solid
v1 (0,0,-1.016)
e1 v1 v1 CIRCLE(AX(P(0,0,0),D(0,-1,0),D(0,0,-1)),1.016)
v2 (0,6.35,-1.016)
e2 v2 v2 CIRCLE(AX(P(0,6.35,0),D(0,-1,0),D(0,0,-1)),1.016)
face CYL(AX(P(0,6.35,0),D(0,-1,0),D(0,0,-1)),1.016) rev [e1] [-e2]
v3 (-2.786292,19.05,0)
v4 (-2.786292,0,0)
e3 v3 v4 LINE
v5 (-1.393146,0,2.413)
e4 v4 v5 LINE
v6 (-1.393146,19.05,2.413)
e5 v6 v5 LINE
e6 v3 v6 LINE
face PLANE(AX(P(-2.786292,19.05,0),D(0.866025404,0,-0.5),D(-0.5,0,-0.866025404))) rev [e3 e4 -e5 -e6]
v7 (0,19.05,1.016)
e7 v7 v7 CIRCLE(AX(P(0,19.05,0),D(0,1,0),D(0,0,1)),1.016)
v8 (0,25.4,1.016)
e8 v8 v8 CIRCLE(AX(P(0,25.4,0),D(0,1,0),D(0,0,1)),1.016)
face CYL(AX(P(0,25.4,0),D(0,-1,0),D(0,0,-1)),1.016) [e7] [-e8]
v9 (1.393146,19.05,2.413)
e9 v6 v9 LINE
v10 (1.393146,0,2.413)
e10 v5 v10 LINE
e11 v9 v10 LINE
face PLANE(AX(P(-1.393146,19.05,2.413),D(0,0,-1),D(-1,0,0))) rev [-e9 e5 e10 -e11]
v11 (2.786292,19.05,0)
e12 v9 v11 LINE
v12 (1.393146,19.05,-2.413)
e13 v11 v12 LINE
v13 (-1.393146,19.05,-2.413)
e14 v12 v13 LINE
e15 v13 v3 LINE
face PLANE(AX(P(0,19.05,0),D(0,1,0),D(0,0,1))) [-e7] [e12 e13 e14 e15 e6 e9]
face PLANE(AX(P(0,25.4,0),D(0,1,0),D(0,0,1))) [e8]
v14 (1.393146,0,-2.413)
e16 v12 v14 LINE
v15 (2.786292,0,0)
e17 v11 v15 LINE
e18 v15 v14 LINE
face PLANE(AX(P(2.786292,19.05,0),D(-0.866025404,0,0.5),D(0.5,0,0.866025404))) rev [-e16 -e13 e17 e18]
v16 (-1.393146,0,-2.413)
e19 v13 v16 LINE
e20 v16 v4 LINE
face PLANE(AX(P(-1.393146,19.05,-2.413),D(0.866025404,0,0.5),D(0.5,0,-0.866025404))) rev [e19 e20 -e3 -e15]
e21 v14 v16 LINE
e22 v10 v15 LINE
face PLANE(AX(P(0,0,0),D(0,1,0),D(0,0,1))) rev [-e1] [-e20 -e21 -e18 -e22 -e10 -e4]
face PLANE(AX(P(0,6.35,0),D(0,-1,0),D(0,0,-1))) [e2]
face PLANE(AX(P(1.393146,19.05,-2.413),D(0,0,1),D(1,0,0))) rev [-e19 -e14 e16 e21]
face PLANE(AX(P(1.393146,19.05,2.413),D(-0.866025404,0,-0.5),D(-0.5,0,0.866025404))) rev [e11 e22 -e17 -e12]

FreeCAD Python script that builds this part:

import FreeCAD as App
import Part
import Sketcher
from FreeCAD import Vector
Q = App.Units.Quantity


def add_polygon(sketch, points):
    """Adds a closed chain of lines whose ends are joined by coincident constraints."""
    first, n = sketch.GeometryCount, len(points)
    for a, b in zip(points, points[1:] + points[:1]):
        sketch.addGeometry(Part.LineSegment(App.Vector(*a, 0), App.Vector(*b, 0)), False)
    for i in range(n):
        sketch.addConstraint(Sketcher.Constraint("Coincident", first + i, 2, first + (i + 1) % n, 1))

doc = App.newDocument("Part")
params = doc.addObject("Spreadsheet::Sheet", "Params")
for row, (alias, value) in enumerate([
    ("pad1_length", "0.75 in"),
    ("sketch2_diameter", "0.08 in"),
    ("pad2_length", "0.25 in"),
    ("sketch3_diameter", "0.08 in"),
    ("pocket1_length", "0.25 in"),
], start=1):
    params.set(f"A{row}", alias)
    params.set(f"B{row}", "=" + value)
    params.setAlias(f"B{row}", alias)

body = doc.addObject("PartDesign::Body", "Body")

# Sketch on XZ plane
sketch1 = doc.addObject("Sketcher::SketchObject", "Sketch")
body.addObject(sketch1)
sketch1.AttachmentSupport = (doc.XZ_Plane, [""])
sketch1.MapMode = "FlatFace"
add_polygon(sketch1, [(1.4, 2.4), (2.8, 0), (1.4, -2.4), (-1.4, -2.4), (-2.8, 0), (-1.4, 2.4)])  # lines 0-5
sketch1.addConstraint([
    Sketcher.Constraint("Horizontal", 2),
    Sketcher.Constraint("Horizontal", 5),
    Sketcher.Constraint("Symmetric", 0, 2, 3, 2, -1, 1),
    Sketcher.Constraint("Symmetric", 1, 2, 4, 2, -1, 1),
    Sketcher.Constraint("PointOnObject", 0, 2, -1),
    Sketcher.Constraint("Parallel", 0, 3),
    Sketcher.Constraint("Vertical", 2, 2, 4, 2),
    Sketcher.Constraint("Angle", 0, Q("-60 deg")),
    Sketcher.Constraint("DistanceY", 2, 2, 4, 2, Q("0.19 in")),
    Sketcher.Constraint("DistanceX", 2, 2, 2, 1, Q("2.786292 mm")),
])
pad1 = doc.addObject("PartDesign::Pad", "Pad")
body.addObject(pad1)
pad1.Profile = sketch1
pad1.setExpression("Length", "Params.pad1_length")
pad1.Reversed = True

# Sketch on XZ plane
sketch2 = doc.addObject("Sketcher::SketchObject", "Sketch001")
body.addObject(sketch2)
sketch2.AttachmentSupport = (doc.XZ_Plane, [""])
sketch2.MapMode = "FlatFace"
sketch2.AttachmentOffset = App.Placement(Vector(0, 0, -0.75 * 25.4), App.Rotation())
sketch2.addGeometry(Part.Circle(Vector(0, 0, 0), Vector(0, 0, 1), 1), False)
sketch2.addConstraint([
    Sketcher.Constraint("Coincident", 0, 3, -1, 1),
    Sketcher.Constraint("Diameter", 0, Q("0.08 in")),
])
sketch2.setExpression("Constraints[1]", "Params.sketch2_diameter")
pad2 = doc.addObject("PartDesign::Pad", "Pad001")
body.addObject(pad2)
pad2.Profile = sketch2
pad2.setExpression("Length", "Params.pad2_length")
pad2.Reversed = True

# Sketch on XZ plane
sketch3 = doc.addObject("Sketcher::SketchObject", "Sketch002")
body.addObject(sketch3)
sketch3.AttachmentSupport = (doc.XZ_Plane, [""])
sketch3.MapMode = "FlatFace"
sketch3.addGeometry(Part.Circle(Vector(0, 0, 0), Vector(0, 0, 1), 1), False)
sketch3.addConstraint([
    Sketcher.Constraint("Coincident", 0, 3, -1, 1),
    Sketcher.Constraint("Diameter", 0, Q("0.08 in")),
])
sketch3.setExpression("Constraints[1]", "Params.sketch3_diameter")
pocket1 = doc.addObject("PartDesign::Pocket", "Pocket")
body.addObject(pocket1)
pocket1.Profile = sketch3
pocket1.setExpression("Length", "Params.pocket1_length")

doc.recompute()
